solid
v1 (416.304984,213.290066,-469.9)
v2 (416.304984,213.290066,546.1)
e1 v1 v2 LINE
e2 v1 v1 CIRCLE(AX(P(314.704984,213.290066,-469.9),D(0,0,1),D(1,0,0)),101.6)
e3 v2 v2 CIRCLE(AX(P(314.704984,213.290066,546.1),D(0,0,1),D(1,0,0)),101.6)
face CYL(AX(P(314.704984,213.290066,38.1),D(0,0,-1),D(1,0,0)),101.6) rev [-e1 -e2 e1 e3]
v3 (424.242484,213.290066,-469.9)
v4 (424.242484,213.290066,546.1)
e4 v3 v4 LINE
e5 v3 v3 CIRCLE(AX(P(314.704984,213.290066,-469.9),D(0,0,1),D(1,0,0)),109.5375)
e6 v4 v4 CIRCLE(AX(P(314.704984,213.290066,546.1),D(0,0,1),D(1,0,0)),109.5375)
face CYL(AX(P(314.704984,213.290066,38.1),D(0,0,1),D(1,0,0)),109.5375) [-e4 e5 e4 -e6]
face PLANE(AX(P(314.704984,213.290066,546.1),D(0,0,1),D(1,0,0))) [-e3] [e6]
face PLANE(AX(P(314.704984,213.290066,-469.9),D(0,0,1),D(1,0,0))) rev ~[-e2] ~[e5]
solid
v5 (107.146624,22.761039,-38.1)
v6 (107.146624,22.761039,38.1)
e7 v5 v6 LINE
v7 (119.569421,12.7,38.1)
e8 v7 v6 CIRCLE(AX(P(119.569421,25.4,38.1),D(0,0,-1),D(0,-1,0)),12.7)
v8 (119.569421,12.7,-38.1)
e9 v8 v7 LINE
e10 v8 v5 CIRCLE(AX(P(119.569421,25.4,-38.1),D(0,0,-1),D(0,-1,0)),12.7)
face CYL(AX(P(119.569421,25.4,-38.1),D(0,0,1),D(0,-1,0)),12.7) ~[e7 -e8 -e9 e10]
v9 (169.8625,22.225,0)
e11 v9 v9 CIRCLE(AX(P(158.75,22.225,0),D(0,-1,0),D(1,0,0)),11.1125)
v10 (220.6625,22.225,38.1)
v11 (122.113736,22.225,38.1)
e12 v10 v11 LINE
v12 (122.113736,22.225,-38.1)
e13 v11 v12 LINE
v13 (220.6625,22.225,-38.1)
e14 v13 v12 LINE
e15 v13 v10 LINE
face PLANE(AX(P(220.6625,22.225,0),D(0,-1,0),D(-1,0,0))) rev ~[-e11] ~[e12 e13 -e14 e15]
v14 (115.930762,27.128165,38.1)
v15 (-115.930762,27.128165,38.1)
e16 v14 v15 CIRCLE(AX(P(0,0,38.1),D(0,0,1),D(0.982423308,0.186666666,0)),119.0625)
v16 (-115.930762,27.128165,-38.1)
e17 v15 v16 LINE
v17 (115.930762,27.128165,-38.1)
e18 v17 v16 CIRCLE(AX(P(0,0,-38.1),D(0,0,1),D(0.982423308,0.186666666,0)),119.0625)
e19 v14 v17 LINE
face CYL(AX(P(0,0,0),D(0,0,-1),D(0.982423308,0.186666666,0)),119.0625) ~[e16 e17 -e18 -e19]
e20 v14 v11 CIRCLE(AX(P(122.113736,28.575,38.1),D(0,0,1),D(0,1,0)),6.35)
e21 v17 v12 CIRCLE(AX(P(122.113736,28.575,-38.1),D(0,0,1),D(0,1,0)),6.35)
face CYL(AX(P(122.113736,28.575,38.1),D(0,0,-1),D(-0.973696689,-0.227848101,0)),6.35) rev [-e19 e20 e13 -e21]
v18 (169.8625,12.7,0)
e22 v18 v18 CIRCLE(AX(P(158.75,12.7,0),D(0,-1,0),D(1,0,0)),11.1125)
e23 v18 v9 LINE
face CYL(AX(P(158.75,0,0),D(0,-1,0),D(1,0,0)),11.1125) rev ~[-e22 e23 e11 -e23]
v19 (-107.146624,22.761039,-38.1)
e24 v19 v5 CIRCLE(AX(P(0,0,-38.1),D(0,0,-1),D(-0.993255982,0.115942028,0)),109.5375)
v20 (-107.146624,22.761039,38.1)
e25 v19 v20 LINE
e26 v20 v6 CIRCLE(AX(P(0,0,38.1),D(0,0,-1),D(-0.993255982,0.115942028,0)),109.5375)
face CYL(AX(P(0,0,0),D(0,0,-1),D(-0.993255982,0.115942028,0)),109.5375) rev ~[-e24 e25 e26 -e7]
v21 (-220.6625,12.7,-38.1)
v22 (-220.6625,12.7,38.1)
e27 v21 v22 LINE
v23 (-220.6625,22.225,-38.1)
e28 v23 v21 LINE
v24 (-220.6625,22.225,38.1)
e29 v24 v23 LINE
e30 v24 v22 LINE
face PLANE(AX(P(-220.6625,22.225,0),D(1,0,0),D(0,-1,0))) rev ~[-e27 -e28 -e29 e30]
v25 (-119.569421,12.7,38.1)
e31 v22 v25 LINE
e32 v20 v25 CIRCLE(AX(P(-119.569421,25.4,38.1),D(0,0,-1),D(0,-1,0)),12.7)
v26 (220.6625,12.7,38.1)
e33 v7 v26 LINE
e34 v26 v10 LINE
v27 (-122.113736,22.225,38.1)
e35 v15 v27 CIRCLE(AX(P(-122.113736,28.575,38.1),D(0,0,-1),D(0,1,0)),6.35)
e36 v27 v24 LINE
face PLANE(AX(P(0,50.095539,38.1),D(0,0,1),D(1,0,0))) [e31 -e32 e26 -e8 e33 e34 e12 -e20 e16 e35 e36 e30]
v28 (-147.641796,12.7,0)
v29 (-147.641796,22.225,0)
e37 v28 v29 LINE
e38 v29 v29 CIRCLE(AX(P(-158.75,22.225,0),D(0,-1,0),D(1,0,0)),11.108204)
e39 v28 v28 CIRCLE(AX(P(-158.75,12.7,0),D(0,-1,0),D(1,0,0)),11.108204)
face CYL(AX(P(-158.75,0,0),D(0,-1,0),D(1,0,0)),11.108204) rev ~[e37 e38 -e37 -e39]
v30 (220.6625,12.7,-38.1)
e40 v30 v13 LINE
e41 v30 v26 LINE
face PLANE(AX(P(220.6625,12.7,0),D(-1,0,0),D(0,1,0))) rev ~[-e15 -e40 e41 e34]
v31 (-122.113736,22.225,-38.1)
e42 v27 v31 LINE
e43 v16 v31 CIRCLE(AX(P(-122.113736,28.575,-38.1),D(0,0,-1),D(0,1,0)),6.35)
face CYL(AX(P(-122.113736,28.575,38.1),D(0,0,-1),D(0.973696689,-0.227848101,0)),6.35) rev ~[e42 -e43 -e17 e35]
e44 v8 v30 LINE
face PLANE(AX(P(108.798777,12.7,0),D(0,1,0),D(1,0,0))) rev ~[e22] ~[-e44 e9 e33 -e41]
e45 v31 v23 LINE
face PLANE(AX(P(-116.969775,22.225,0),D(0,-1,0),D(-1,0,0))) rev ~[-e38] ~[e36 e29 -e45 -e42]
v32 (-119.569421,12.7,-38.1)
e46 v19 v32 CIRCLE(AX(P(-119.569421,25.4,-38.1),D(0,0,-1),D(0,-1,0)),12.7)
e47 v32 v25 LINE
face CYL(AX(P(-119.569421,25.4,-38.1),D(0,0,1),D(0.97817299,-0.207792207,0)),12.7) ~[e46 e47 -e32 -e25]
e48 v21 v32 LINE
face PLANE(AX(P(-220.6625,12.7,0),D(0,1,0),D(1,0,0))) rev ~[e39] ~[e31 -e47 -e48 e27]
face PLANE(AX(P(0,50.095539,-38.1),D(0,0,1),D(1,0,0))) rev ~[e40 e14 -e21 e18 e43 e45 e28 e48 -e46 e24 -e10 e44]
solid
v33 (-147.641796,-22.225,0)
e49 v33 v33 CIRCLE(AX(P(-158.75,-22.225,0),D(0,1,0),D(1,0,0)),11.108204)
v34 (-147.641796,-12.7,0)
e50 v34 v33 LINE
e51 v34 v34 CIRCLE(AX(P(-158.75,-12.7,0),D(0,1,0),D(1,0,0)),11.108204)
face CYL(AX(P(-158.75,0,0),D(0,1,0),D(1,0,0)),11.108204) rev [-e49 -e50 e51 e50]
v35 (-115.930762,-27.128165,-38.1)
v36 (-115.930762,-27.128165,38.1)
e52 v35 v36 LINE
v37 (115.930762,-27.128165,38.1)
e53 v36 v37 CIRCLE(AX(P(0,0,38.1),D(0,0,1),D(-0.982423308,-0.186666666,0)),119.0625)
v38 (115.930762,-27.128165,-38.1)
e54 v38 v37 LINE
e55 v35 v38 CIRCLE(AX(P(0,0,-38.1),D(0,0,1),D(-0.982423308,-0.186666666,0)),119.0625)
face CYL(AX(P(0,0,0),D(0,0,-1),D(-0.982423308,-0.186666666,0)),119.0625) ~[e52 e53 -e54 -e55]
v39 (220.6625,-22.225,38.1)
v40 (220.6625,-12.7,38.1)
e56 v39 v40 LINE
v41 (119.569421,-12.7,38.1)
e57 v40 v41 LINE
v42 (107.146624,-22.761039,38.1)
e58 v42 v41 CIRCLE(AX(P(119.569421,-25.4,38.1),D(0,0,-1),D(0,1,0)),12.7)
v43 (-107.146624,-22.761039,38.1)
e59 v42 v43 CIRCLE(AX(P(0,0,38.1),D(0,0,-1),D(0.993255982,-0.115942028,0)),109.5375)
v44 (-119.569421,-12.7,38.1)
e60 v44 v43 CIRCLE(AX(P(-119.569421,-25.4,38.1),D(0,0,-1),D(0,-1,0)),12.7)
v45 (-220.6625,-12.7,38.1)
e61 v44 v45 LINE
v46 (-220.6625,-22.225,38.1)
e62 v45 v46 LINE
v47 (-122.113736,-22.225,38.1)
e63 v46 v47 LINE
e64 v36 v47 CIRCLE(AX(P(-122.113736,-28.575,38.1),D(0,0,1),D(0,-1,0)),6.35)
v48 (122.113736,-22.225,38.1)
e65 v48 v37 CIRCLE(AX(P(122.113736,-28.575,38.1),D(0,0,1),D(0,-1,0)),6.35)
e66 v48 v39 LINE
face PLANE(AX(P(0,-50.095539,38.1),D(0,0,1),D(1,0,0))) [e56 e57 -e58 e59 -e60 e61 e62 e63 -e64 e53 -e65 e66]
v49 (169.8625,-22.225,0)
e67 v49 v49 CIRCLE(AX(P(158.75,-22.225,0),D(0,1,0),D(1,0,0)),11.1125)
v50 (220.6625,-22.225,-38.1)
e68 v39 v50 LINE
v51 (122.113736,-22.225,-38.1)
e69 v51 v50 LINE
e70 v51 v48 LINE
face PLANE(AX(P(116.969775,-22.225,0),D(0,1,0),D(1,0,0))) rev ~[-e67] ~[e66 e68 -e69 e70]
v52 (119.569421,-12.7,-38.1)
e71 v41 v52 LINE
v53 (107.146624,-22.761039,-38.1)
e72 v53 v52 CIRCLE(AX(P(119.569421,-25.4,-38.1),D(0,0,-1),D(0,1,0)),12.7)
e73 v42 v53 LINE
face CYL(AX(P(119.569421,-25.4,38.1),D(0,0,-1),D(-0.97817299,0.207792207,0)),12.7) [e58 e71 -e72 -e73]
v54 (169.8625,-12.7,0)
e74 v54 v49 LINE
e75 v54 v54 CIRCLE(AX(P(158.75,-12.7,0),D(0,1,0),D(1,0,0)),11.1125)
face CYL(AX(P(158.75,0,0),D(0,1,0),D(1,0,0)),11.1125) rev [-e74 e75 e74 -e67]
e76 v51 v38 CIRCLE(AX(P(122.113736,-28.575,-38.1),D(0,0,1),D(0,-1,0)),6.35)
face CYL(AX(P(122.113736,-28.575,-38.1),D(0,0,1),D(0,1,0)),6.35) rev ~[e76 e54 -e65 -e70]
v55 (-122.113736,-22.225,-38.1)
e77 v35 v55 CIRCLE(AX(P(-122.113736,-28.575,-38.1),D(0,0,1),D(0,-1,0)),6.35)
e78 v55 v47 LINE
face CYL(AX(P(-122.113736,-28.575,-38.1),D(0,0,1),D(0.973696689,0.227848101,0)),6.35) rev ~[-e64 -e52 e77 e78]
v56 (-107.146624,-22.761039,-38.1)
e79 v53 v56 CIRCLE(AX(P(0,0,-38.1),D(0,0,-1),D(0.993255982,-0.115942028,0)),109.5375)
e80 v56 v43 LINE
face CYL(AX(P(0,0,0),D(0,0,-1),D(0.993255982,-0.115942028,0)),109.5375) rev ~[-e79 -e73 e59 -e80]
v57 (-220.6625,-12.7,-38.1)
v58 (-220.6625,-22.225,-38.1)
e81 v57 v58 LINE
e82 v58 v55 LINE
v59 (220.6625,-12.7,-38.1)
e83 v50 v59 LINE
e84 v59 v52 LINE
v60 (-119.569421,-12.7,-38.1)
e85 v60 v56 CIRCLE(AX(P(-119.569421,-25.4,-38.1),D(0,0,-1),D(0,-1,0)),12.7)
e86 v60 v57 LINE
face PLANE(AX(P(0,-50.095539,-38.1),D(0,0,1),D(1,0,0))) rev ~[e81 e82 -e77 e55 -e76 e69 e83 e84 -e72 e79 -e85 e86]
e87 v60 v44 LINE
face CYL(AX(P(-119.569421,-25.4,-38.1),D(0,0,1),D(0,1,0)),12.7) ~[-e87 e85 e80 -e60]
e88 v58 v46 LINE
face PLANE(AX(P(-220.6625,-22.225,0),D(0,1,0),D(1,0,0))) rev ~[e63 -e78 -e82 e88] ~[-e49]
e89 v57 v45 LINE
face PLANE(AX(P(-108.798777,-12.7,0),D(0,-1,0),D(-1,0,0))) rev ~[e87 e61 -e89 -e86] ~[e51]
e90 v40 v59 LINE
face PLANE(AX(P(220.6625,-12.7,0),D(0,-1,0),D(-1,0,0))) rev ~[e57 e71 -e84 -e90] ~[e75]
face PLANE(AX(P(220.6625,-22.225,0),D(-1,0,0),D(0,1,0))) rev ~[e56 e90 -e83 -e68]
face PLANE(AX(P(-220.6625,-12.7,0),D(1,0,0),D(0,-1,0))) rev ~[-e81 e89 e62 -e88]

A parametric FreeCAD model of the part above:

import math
import FreeCAD as App
import Part
import Sketcher
Q = App.Units.Quantity


def edges_at(feature, points):
    """Names of the edges that pass closest to the given points."""
    edges = feature.Shape.Edges
    near = lambda p: min(range(len(edges)), key=lambda i: edges[i].distToShape(Part.Vertex(*p))[0])
    return sorted({f"Edge{near(p) + 1}" for p in points})

doc = App.newDocument("Part")
params = doc.addObject("Spreadsheet::Sheet", "Params")
for row, (alias, value) in enumerate([
    ("sketch1_diameter", "8 in"),
    ("sketch1_diameter2", "8.625 in"),
    ("sketch1_radius", "4.6875 in"),
    ("sketch1_height", "0.375 in"),
    ("pad1_length", "3 in"),
    ("fillet_radius", "0.25 in"),
    ("fillet2_radius", "0.5 in"),
    ("sketch2_diameter", "0.875 in"),
    ("sketch3_diameter", "0.875 in"),
    ("sketch4_diameter", "8 in"),
    ("sketch4_diameter2", "8.625 in"),
    ("pad2_length", "40 in"),
], start=1):
    params.set(f"A{row}", alias)
    params.set(f"B{row}", "=" + value)
    params.setAlias(f"B{row}", alias)

body = doc.addObject("PartDesign::Body", "Body")
body.AllowCompound = True

sketch1 = body.newObject("Sketcher::SketchObject", "Sketch")
sketch1.AttachmentSupport = (doc.getObject("XY_Plane"), [""])
sketch1.MapMode = "FlatFace"
sketch1.addGeometry([
    Part.ArcOfCircle(Part.Circle(App.Vector(0, 0, 0), App.Vector(0, 0, 1), 110), math.radians(-173), math.radians(-7)),
    Part.LineSegment(App.Vector(-109, -13, 0), App.Vector(-221, -13, 0)),
    Part.LineSegment(App.Vector(-221, -13, 0), App.Vector(-221, -22, 0)),
    Part.LineSegment(App.Vector(-221, -22, 0), App.Vector(-117, -22, 0)),
    Part.ArcOfCircle(Part.Circle(App.Vector(0, 0, 0), App.Vector(0, 0, 1), 119), math.radians(-169), math.radians(-11)),
    Part.LineSegment(App.Vector(117, -22, 0), App.Vector(221, -22, 0)),
    Part.LineSegment(App.Vector(221, -22, 0), App.Vector(221, -13, 0)),
    Part.LineSegment(App.Vector(221, -13, 0), App.Vector(109, -13, 0)),
    Part.LineSegment(App.Vector(-221, 22, 0), App.Vector(-221, 13, 0)),
    Part.LineSegment(App.Vector(-221, 13, 0), App.Vector(-109, 13, 0)),
    Part.ArcOfCircle(Part.Circle(App.Vector(0, 0, 0), App.Vector(0, 0, 1), 110), math.radians(7), math.radians(173)),
    Part.LineSegment(App.Vector(109, 13, 0), App.Vector(221, 13, 0)),
    Part.LineSegment(App.Vector(221, 13, 0), App.Vector(221, 22, 0)),
    Part.LineSegment(App.Vector(221, 22, 0), App.Vector(117, 22, 0)),
    Part.ArcOfCircle(Part.Circle(App.Vector(0, 0, 0), App.Vector(0, 0, 1), 119), math.radians(11), math.radians(169)),
    Part.LineSegment(App.Vector(-117, 22, 0), App.Vector(-221, 22, 0)),
    Part.Circle(App.Vector(315, 213, 0), App.Vector(0, 0, 1), 110),
    Part.Circle(App.Vector(315, 213, 0), App.Vector(0, 0, 1), 102),
], False)
sketch1.addConstraint([
    Sketcher.Constraint("Coincident", 0, 1, 1, 1),
    Sketcher.Constraint("Coincident", 1, 2, 2, 1),
    Sketcher.Constraint("Coincident", 2, 2, 3, 1),
    Sketcher.Constraint("Coincident", 3, 2, 4, 1),
    Sketcher.Constraint("Coincident", 4, 2, 5, 1),
    Sketcher.Constraint("Coincident", 5, 2, 6, 1),
    Sketcher.Constraint("Coincident", 6, 2, 7, 1),
    Sketcher.Constraint("Coincident", 7, 2, 0, 2),
    Sketcher.Constraint("Coincident", 8, 2, 9, 1),
    Sketcher.Constraint("Coincident", 9, 2, 10, 2),
    Sketcher.Constraint("Coincident", 10, 1, 11, 1),
    Sketcher.Constraint("Coincident", 11, 2, 12, 1),
    Sketcher.Constraint("Coincident", 12, 2, 13, 1),
    Sketcher.Constraint("Coincident", 13, 2, 14, 1),
    Sketcher.Constraint("Coincident", 14, 2, 15, 1),
    Sketcher.Constraint("Coincident", 15, 2, 8, 1),
    Sketcher.Constraint("Horizontal", 1),
    Sketcher.Constraint("Vertical", 2),
    Sketcher.Constraint("Horizontal", 3),
    Sketcher.Constraint("Horizontal", 5),
    Sketcher.Constraint("Vertical", 6),
    Sketcher.Constraint("Horizontal", 7),
    Sketcher.Constraint("Vertical", 8),
    Sketcher.Constraint("Horizontal", 9),
    Sketcher.Constraint("Horizontal", 11),
    Sketcher.Constraint("Vertical", 12),
    Sketcher.Constraint("Horizontal", 13),
    Sketcher.Constraint("Horizontal", 15),
    Sketcher.Constraint("Coincident", 0, 3, -1, 1),
    Sketcher.Constraint("Coincident", 4, 3, -1, 1),
    Sketcher.Constraint("Coincident", 10, 3, -1, 1),
    Sketcher.Constraint("Coincident", 14, 3, -1, 1),
    Sketcher.Constraint("Coincident", 17, 3, 16, 3),
    Sketcher.Constraint("Equal", 0, 10),
    Sketcher.Constraint("Equal", 4, 14),
    Sketcher.Constraint("Equal", 10, 16),
    Sketcher.Constraint("Symmetric", 6, 2, 8, 2, -1, 1),
    Sketcher.Constraint("Symmetric", 1, 2, 11, 2, -1, 1),
    Sketcher.Constraint("Symmetric", 2, 2, 5, 2, -2),
    Sketcher.Constraint("Horizontal", 1, 2, 6, 2),
    Sketcher.Constraint("Horizontal", 13, 2, 14, 2),
    Sketcher.Constraint("Vertical", 4, 2, 13, 2),
    Sketcher.Constraint("Diameter", 17, Q("8 in")),
    Sketcher.Constraint("Diameter", 16, Q("8.625 in")),
    Sketcher.Constraint("Radius", 4, Q("4.6875 in")),
    Sketcher.Constraint("DistanceY", 1, 2, 8, 2, Q("1 in")),
    Sketcher.Constraint("DistanceY", 2, 2, 2, 1, Q("0.375 in")),
    Sketcher.Constraint("DistanceX", 1, 2, -1, 1, Q("8.6875 in")),
    Sketcher.Constraint("DistanceX", 0, 1, 16, 3, 423.503761),
    Sketcher.Constraint("DistanceY", -1, 1, 16, 3, 213.290066),
])
sketch1.setExpression("Constraints[42]", "Params.sketch1_diameter")
sketch1.setExpression("Constraints[43]", "Params.sketch1_diameter2")
sketch1.setExpression("Constraints[44]", "Params.sketch1_radius")
sketch1.setExpression("Constraints[46]", "Params.sketch1_height")
pad1 = body.newObject("PartDesign::Pad", "Pad")
pad1.Profile = sketch1
pad1.setExpression("Length", "Params.pad1_length")
pad1.Midplane = True
doc.recompute()

fillet = body.newObject("PartDesign::Fillet", "Fillet")
fillet.Base = (pad1, edges_at(pad1, [
    (-116.97, 22.225, 0),
    (116.97, 22.225, 0),
    (116.97, -22.225, 0),
    (-116.97, -22.225, 0),
]))
fillet.setExpression("Radius", "Params.fillet_radius")
doc.recompute()

fillet2 = body.newObject("PartDesign::Fillet", "Fillet001")
fillet2.Base = (fillet, edges_at(fillet, [
    (-108.799, 12.7, 0),
    (108.799, 12.7, 0),
    (108.799, -12.7, 0),
    (-108.799, -12.7, 0),
]))
fillet2.setExpression("Radius", "Params.fillet2_radius")

sketch2 = body.newObject("Sketcher::SketchObject", "Sketch001")
sketch2.AttachmentSupport = (doc.getObject("XZ_Plane"), [""])
sketch2.MapMode = "FlatFace"
sketch2.addGeometry([
    Part.Circle(App.Vector(-159, 0, 0), App.Vector(0, 0, 1), 11),
    Part.Circle(App.Vector(159, 0, 0), App.Vector(0, 0, 1), 11),
], False)
sketch2.addConstraint([
    Sketcher.Constraint("Symmetric", 0, 3, 1, 3, -1, 1),
    Sketcher.Constraint("PointOnObject", 0, 3, -1),
    Sketcher.Constraint("Diameter", 1, Q("0.875 in")),
    Sketcher.Constraint("DistanceX", 0, 3, 1, 3, Q("12.5 in")),
    Sketcher.Constraint("Diameter", 0, 22.216408),
])
sketch2.setExpression("Constraints[2]", "Params.sketch2_diameter")
pocket1 = body.newObject("PartDesign::Pocket", "Pocket")
pocket1.Profile = sketch2
pocket1.Type = "ThroughAll"
pocket1.Reversed = True

sketch3 = body.newObject("Sketcher::SketchObject", "Sketch002")
sketch3.AttachmentSupport = (doc.getObject("XZ_Plane"), [""])
sketch3.MapMode = "FlatFace"
sketch3.addGeometry([
    Part.Circle(App.Vector(-159, 0, 0), App.Vector(0, 0, 1), 11),
    Part.Circle(App.Vector(159, 0, 0), App.Vector(0, 0, 1), 11),
], False)
sketch3.addConstraint([
    Sketcher.Constraint("Symmetric", 0, 3, 1, 3, -1, 1),
    Sketcher.Constraint("PointOnObject", 0, 3, -1),
    Sketcher.Constraint("Diameter", 1, Q("0.875 in")),
    Sketcher.Constraint("DistanceX", 0, 3, 1, 3, Q("12.5 in")),
    Sketcher.Constraint("Diameter", 0, 22.216408),
])
sketch3.setExpression("Constraints[2]", "Params.sketch3_diameter")
pocket2 = body.newObject("PartDesign::Pocket", "Pocket001")
pocket2.Profile = sketch3
pocket2.Type = "ThroughAll"

sketch4 = body.newObject("Sketcher::SketchObject", "Sketch003")
sketch4.AttachmentSupport = (doc.getObject("XY_Plane"), [""])
sketch4.MapMode = "FlatFace"
sketch4.AttachmentOffset = App.Placement(App.Vector(0, 0, 1.5 * 25.4), App.Rotation())
sketch4.addGeometry([
    Part.Circle(App.Vector(315, 213, 0), App.Vector(0, 0, 1), 110),
    Part.Circle(App.Vector(315, 213, 0), App.Vector(0, 0, 1), 102),
], False)
sketch4.addConstraint([
    Sketcher.Constraint("Coincident", 1, 3, 0, 3),
    Sketcher.Constraint("Diameter", 1, Q("8 in")),
    Sketcher.Constraint("Diameter", 0, Q("8.625 in")),
    Sketcher.Constraint("DistanceX", -1, 1, 0, 3, 314.704984),
    Sketcher.Constraint("DistanceY", -1, 1, 0, 3, 213.290066),
])
sketch4.setExpression("Constraints[1]", "Params.sketch4_diameter")
sketch4.setExpression("Constraints[2]", "Params.sketch4_diameter2")
pad2 = body.newObject("PartDesign::Pad", "Pad001")
pad2.Profile = sketch4
pad2.setExpression("Length", "Params.pad2_length")
pad2.Midplane = True

doc.recompute()
